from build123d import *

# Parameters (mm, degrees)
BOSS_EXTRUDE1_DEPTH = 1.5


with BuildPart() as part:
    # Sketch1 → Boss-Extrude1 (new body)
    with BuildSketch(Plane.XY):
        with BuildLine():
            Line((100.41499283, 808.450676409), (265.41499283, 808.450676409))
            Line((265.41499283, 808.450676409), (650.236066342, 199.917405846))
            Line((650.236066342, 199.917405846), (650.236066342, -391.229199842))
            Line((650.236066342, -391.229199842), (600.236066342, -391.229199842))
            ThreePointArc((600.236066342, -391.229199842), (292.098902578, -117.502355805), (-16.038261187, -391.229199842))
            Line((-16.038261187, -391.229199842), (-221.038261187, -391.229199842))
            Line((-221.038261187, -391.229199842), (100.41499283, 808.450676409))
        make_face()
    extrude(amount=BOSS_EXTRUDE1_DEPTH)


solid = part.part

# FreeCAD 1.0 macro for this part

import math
import FreeCAD as App
import Part
import Sketcher
from FreeCAD import Vector
Q = App.Units.Quantity

doc = App.newDocument("Part")
body = doc.addObject("PartDesign::Body", "Body")

# Sketch on XY plane
sketch1 = body.newObject("Sketcher::SketchObject", "Sketch")
sketch1.AttachmentSupport = (doc.getObject("XY_Plane"), [""])
sketch1.MapMode = "FlatFace"
sketch1.addGeometry([
    Part.LineSegment(Vector(265.414993, 808.450676, 0), Vector(100.414993, 808.450676, 0)),  # 0
    Part.LineSegment(Vector(100.414993, 808.450676, 0), Vector(-221.038261, -391.2292, 0)),  # 1
    Part.LineSegment(Vector(-221.038261, -391.2292, 0), Vector(-16.038261, -391.2292, 0)),  # 2
    Part.ArcOfCircle(Part.Circle(Vector(292.098903, -427.802388, 0), Vector(0, 0, 1), 310.300032), math.radians(6.768841), math.radians(173.231159)),  # 3
    Part.LineSegment(Vector(600.236066, -391.2292, 0), Vector(650.236066, -391.2292, 0)),  # 4
    Part.LineSegment(Vector(650.236066, -391.2292, 0), Vector(650.236066, 199.917406, 0)),  # 5
    Part.LineSegment(Vector(650.236066, 199.917406, 0), Vector(265.414993, 808.450676, 0)),  # 6
], False)
sketch1.addConstraint([
    Sketcher.Constraint("Coincident", 0, 2, 1, 1),
    Sketcher.Constraint("Coincident", 1, 2, 2, 1),
    Sketcher.Constraint("Coincident", 2, 2, 3, 2),
    Sketcher.Constraint("Coincident", 3, 1, 4, 1),
    Sketcher.Constraint("Coincident", 4, 2, 5, 1),
    Sketcher.Constraint("Coincident", 5, 2, 6, 1),
    Sketcher.Constraint("Coincident", 6, 2, 0, 1),
    Sketcher.Constraint("Horizontal", 0),
    Sketcher.Constraint("Horizontal", 2),
    Sketcher.Constraint("Horizontal", 4),
    Sketcher.Constraint("Vertical", 5),
    Sketcher.Constraint("Horizontal", 2, 2, 3, 1),
    Sketcher.Constraint("DistanceX", 0, 2, 0, 1, Q("165 mm")),
    Sketcher.Constraint("DistanceX", 2, 1, 2, 2, Q("205 mm")),
    Sketcher.Constraint("DistanceX", 4, 1, 4, 2, Q("50 mm")),
    Sketcher.Constraint("Angle", 1, Q("-105 deg")),
    Sketcher.Constraint("Distance", 1, Q("1242 mm")),
    Sketcher.Constraint("Distance", 6, Q("720 mm")),
    Sketcher.Constraint("Radius", 3, Q("310.300032 mm")),
    Sketcher.Constraint("DistanceY", 1, 2, -1, 1, Q("391.2292 mm")),
    Sketcher.Constraint("DistanceY", 5, 1, 5, 2, Q("591.146606 mm")),
    Sketcher.Constraint("DistanceX", 1, 2, -1, 1, Q("221.038261 mm")),
])
pad1 = body.newObject("PartDesign::Pad", "Pad")
pad1.Profile = sketch1
pad1.Length = 1.5

doc.recompute()
